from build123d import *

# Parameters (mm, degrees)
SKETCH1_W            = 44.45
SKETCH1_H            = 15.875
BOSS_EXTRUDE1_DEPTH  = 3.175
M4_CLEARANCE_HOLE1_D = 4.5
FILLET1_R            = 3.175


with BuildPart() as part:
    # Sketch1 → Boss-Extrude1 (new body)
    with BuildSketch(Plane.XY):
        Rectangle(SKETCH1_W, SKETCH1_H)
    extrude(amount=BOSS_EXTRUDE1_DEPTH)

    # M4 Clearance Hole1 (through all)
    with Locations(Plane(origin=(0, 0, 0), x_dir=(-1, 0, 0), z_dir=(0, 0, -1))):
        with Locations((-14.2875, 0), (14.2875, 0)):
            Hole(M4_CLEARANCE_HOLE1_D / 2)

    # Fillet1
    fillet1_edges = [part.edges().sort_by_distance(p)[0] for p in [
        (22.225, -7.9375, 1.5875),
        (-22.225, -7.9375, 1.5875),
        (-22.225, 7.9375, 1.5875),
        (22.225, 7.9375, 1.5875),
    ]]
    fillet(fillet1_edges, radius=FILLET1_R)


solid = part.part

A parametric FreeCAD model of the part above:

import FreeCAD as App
import Part
import Sketcher
from FreeCAD import Vector
Q = App.Units.Quantity


def edges_at(feature, points):
    """Names of the edges that pass closest to the given points."""
    edges = feature.Shape.Edges
    near = lambda p: min(range(len(edges)), key=lambda i: edges[i].distToShape(Part.Vertex(*p))[0])
    return sorted({f"Edge{near(p) + 1}" for p in points})

doc = App.newDocument("Part")
params = doc.addObject("Spreadsheet::Sheet", "Params")
for row, (alias, value) in enumerate([
    ("sketch1_width", "1.75 in"),
    ("sketch1_height", "0.625 in"),
    ("pad1_length", "0.125 in"),
    ("hole_diameter", "4.5 mm"),
    ("fillet_radius", "0.125 in"),
], start=1):
    params.set(f"A{row}", alias)
    params.set(f"B{row}", "=" + value)
    params.setAlias(f"B{row}", alias)

body = doc.addObject("PartDesign::Body", "Body")

sketch1 = doc.addObject("Sketcher::SketchObject", "Sketch")
body.addObject(sketch1)
sketch1.AttachmentSupport = (doc.XY_Plane, [""])
sketch1.MapMode = "FlatFace"
sketch1.addGeometry([
    Part.LineSegment(Vector(-22, 8, 0), Vector(-22, -8, 0)),
    Part.LineSegment(Vector(-22, -8, 0), Vector(22, -8, 0)),
    Part.LineSegment(Vector(22, -8, 0), Vector(22, 8, 0)),
    Part.LineSegment(Vector(22, 8, 0), Vector(-22, 8, 0)),
], False)
sketch1.addConstraint([
    Sketcher.Constraint("Coincident", 0, 2, 1, 1),
    Sketcher.Constraint("Coincident", 1, 2, 2, 1),
    Sketcher.Constraint("Coincident", 2, 2, 3, 1),
    Sketcher.Constraint("Coincident", 3, 2, 0, 1),
    Sketcher.Constraint("Vertical", 0),
    Sketcher.Constraint("Horizontal", 1),
    Sketcher.Constraint("Vertical", 2),
    Sketcher.Constraint("Horizontal", 3),
    Sketcher.Constraint("Symmetric", 0, 2, 2, 2, -1, 1),
    Sketcher.Constraint("DistanceX", 1, 1, 1, 2, Q("1.75 in")),
    Sketcher.Constraint("DistanceY", 0, 2, 0, 1, Q("0.625 in")),
])
sketch1.setExpression("Constraints[9]", "Params.sketch1_width")
sketch1.setExpression("Constraints[10]", "Params.sketch1_height")
pad1 = doc.addObject("PartDesign::Pad", "Pad")
body.addObject(pad1)
pad1.Profile = sketch1
pad1.setExpression("Length", "Params.pad1_length")

sketch2 = doc.addObject("Sketcher::SketchObject", "Sketch001")
body.addObject(sketch2)
sketch2.AttachmentSupport = (doc.XY_Plane, [""])
sketch2.MapMode = "FlatFace"
sketch2.addGeometry([
    Part.Circle(Vector(14.3, 0, 0), Vector(0, 0, 1), 2.2),
    Part.Circle(Vector(-14.3, 0, 0), Vector(0, 0, 1), 2.2),
], False)
sketch2.addConstraint([
    Sketcher.Constraint("Equal", 0, 1),
    Sketcher.Constraint("Symmetric", 0, 3, 1, 3, -1, 1),
    Sketcher.Constraint("PointOnObject", 0, 3, -1),
    Sketcher.Constraint("Diameter", 0, Q("4.5 mm")),
    Sketcher.Constraint("DistanceX", -1, 1, 0, 3, Q("0.5625 in")),
])
doc.recompute()
hole = doc.addObject("PartDesign::Hole", "Hole")
body.addObject(hole)
hole.Profile = sketch2
hole.ThreadType = "None"
hole.setExpression("Diameter", "Params.hole_diameter")
hole.DepthType = "ThroughAll"
hole.Reversed = True
doc.recompute()

fillet = doc.addObject("PartDesign::Fillet", "Fillet")
body.addObject(fillet)
fillet.Base = (hole, edges_at(hole, [
    (22.225, -7.938, 1.587),
    (-22.225, -7.938, 1.587),
    (-22.225, 7.938, 1.587),
    (22.225, 7.938, 1.587),
]))
fillet.setExpression("Radius", "Params.fillet_radius")

doc.recompute()
